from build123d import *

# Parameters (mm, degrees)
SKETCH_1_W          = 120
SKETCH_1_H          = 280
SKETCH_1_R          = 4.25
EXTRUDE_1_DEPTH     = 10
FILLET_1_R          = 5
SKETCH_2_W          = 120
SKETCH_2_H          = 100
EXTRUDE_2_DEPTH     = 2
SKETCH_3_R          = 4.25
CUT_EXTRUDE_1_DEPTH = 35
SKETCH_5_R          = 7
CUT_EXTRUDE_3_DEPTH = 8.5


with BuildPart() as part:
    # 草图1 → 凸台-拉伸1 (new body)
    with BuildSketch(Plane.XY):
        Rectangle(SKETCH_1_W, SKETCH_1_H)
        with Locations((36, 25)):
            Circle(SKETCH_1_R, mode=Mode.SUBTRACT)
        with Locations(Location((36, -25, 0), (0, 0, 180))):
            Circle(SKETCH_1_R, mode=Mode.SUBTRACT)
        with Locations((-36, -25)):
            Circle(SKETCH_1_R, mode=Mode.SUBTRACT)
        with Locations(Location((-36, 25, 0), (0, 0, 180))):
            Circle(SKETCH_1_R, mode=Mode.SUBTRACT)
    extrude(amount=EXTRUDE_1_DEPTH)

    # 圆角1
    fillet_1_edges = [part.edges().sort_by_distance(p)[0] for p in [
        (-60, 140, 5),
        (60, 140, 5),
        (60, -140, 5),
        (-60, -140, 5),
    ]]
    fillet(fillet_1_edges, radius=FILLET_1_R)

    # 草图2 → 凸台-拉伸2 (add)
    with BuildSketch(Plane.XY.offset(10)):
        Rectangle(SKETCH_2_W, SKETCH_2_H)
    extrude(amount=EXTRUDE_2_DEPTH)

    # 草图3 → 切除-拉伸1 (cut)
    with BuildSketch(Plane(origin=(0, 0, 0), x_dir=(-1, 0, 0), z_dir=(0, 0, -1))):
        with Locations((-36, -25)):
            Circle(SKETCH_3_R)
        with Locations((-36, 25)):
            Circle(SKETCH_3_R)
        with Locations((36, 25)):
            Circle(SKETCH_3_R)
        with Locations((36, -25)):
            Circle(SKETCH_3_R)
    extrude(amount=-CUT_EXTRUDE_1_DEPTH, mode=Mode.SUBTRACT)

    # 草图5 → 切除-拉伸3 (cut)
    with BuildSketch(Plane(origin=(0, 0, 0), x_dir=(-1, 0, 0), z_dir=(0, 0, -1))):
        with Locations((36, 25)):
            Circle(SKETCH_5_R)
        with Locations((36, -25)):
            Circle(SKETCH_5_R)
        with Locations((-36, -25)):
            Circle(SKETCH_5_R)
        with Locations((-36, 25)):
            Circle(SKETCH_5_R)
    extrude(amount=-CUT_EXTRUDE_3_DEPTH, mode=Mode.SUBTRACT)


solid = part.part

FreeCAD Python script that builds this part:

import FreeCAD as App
import Part
import Sketcher
from FreeCAD import Vector
Q = App.Units.Quantity


def edges_at(feature, points):
    """Names of the edges that pass closest to the given points."""
    edges = feature.Shape.Edges
    near = lambda p: min(range(len(edges)), key=lambda i: edges[i].distToShape(Part.Vertex(*p))[0])
    return sorted({f"Edge{near(p) + 1}" for p in points})


def add_polygon(sketch, points):
    """Adds a closed chain of lines whose ends are joined by coincident constraints."""
    first, n = sketch.GeometryCount, len(points)
    for a, b in zip(points, points[1:] + points[:1]):
        sketch.addGeometry(Part.LineSegment(App.Vector(*a, 0), App.Vector(*b, 0)), False)
    for i in range(n):
        sketch.addConstraint(Sketcher.Constraint("Coincident", first + i, 2, first + (i + 1) % n, 1))

doc = App.newDocument("Part")
params = doc.addObject("Spreadsheet::Sheet", "Params")
for row, (alias, value) in enumerate([
    ("sketch1_diameter", "8.5 mm"),
    ("sketch1_width", "120 mm"),
    ("sketch1_height", "280 mm"),
    ("pad1_length", "10 mm"),
    ("fillet_radius", "5 mm"),
    ("sketch2_width", "120 mm"),
    ("sketch2_height", "100 mm"),
    ("pad2_length", "2 mm"),
    ("sketch3_diameter", "8.5 mm"),
    ("pocket1_length", "35 mm"),
    ("sketch4_diameter", "14 mm"),
    ("pocket2_length", "8.5 mm"),
], start=1):
    params.set(f"A{row}", alias)
    params.set(f"B{row}", "=" + value)
    params.setAlias(f"B{row}", alias)

body = doc.addObject("PartDesign::Body", "Body")

# Sketch on XY plane
sketch1 = body.newObject("Sketcher::SketchObject", "Sketch")
sketch1.AttachmentSupport = (doc.getObject("XY_Plane"), [""])
sketch1.MapMode = "FlatFace"
add_polygon(sketch1, [(-60, 140), (-60, -140), (60, -140), (60, 140)])  # lines 0-3
sketch1.addGeometry(Part.Circle(Vector(-36, -25, 0), Vector(0, 0, 1), 4.2), False)  # 4
sketch1.addGeometry(Part.Circle(Vector(36, -25, 0), Vector(0, 0, 1), 4.2), False)  # 5
sketch1.addGeometry(Part.Circle(Vector(-36, 25, 0), Vector(0, 0, 1), 4.2), False)  # 6
sketch1.addGeometry(Part.Circle(Vector(36, 25, 0), Vector(0, 0, 1), 4.2), False)  # 7
sketch1.addConstraint(Sketcher.Constraint("Vertical", 0))
sketch1.addConstraint(Sketcher.Constraint("Horizontal", 1))
sketch1.addConstraint(Sketcher.Constraint("Vertical", 2))
sketch1.addConstraint(Sketcher.Constraint("Horizontal", 3))
sketch1.addConstraint(Sketcher.Constraint("Equal", 4, 5))
sketch1.addConstraint(Sketcher.Constraint("Equal", 5, 6))
sketch1.addConstraint(Sketcher.Constraint("Equal", 6, 7))
sketch1.addConstraint(Sketcher.Constraint("Symmetric", 5, 3, 6, 3, -1, 1))
sketch1.addConstraint(Sketcher.Constraint("Symmetric", 4, 3, 7, 3, -1, 1))
sketch1.addConstraint(Sketcher.Constraint("Symmetric", 0, 2, 2, 2, -1, 1))
sketch1.addConstraint(Sketcher.Constraint("Symmetric", 4, 3, 5, 3, -2))
sketch1.addConstraint(Sketcher.Constraint("Diameter", 4, Q("8.5 mm")))
sketch1.addConstraint(Sketcher.Constraint("DistanceX", 1, 1, 1, 2, Q("120 mm")))
sketch1.addConstraint(Sketcher.Constraint("DistanceY", 0, 2, 0, 1, Q("280 mm")))
sketch1.addConstraint(Sketcher.Constraint("DistanceX", 4, 3, -1, 1, Q("36 mm")))
sketch1.addConstraint(Sketcher.Constraint("DistanceY", 4, 3, -1, 1, Q("25 mm")))
sketch1.setExpression("Constraints[15]", "Params.sketch1_diameter")
sketch1.setExpression("Constraints[16]", "Params.sketch1_width")
sketch1.setExpression("Constraints[17]", "Params.sketch1_height")
pad1 = body.newObject("PartDesign::Pad", "Pad")
pad1.Profile = sketch1
pad1.setExpression("Length", "Params.pad1_length")
doc.recompute()

fillet = body.newObject("PartDesign::Fillet", "Fillet")
fillet.Base = (pad1, edges_at(pad1, [
    (-60, 140, 5),
    (60, 140, 5),
    (60, -140, 5),
    (-60, -140, 5),
]))
fillet.setExpression("Radius", "Params.fillet_radius")

# Sketch on XY plane
sketch2 = body.newObject("Sketcher::SketchObject", "Sketch001")
sketch2.AttachmentSupport = (doc.getObject("XY_Plane"), [""])
sketch2.MapMode = "FlatFace"
sketch2.AttachmentOffset = App.Placement(Vector(0, 0, 10), App.Rotation())
add_polygon(sketch2, [(-60, 50), (-60, -50), (60, -50), (60, 50)])  # lines 0-3
sketch2.addConstraint(Sketcher.Constraint("Vertical", 0))
sketch2.addConstraint(Sketcher.Constraint("Horizontal", 1))
sketch2.addConstraint(Sketcher.Constraint("Vertical", 2))
sketch2.addConstraint(Sketcher.Constraint("Horizontal", 3))
sketch2.addConstraint(Sketcher.Constraint("Symmetric", 0, 2, 2, 2, -1, 1))
sketch2.addConstraint(Sketcher.Constraint("DistanceX", 1, 1, 1, 2, Q("120 mm")))
sketch2.addConstraint(Sketcher.Constraint("DistanceY", 0, 2, 0, 1, Q("100 mm")))
sketch2.setExpression("Constraints[9]", "Params.sketch2_width")
sketch2.setExpression("Constraints[10]", "Params.sketch2_height")
pad2 = body.newObject("PartDesign::Pad", "Pad001")
pad2.Profile = sketch2
pad2.setExpression("Length", "Params.pad2_length")

# Sketch on XY plane
sketch3 = body.newObject("Sketcher::SketchObject", "Sketch002")
sketch3.AttachmentSupport = (doc.getObject("XY_Plane"), [""])
sketch3.MapMode = "FlatFace"
sketch3.addGeometry(Part.Circle(Vector(36, -25, 0), Vector(0, 0, 1), 4.2), False)
sketch3.addGeometry(Part.Circle(Vector(36, 25, 0), Vector(0, 0, 1), 4.2), False)
sketch3.addGeometry(Part.Circle(Vector(-36, 25, 0), Vector(0, 0, 1), 4.2), False)
sketch3.addGeometry(Part.Circle(Vector(-36, -25, 0), Vector(0, 0, 1), 4.2), False)
sketch3.addConstraint(Sketcher.Constraint("Equal", 0, 1))
sketch3.addConstraint(Sketcher.Constraint("Equal", 1, 2))
sketch3.addConstraint(Sketcher.Constraint("Equal", 2, 3))
sketch3.addConstraint(Sketcher.Constraint("Symmetric", 0, 3, 2, 3, -1, 1))
sketch3.addConstraint(Sketcher.Constraint("Symmetric", 1, 3, 3, 3, -1, 1))
sketch3.addConstraint(Sketcher.Constraint("Symmetric", 1, 3, 2, 3, -2))
sketch3.addConstraint(Sketcher.Constraint("Diameter", 0, Q("8.5 mm")))
sketch3.addConstraint(Sketcher.Constraint("DistanceX", -1, 1, 0, 3, Q("36 mm")))
sketch3.addConstraint(Sketcher.Constraint("DistanceY", 0, 3, -1, 1, Q("25 mm")))
sketch3.setExpression("Constraints[6]", "Params.sketch3_diameter")
pocket1 = body.newObject("PartDesign::Pocket", "Pocket")
pocket1.Profile = sketch3
pocket1.setExpression("Length", "Params.pocket1_length")
pocket1.Reversed = True

# Sketch on XY plane
sketch4 = body.newObject("Sketcher::SketchObject", "Sketch003")
sketch4.AttachmentSupport = (doc.getObject("XY_Plane"), [""])
sketch4.MapMode = "FlatFace"
sketch4.addGeometry(Part.Circle(Vector(-36, 25, 0), Vector(0, 0, 1), 7), False)
sketch4.addGeometry(Part.Circle(Vector(-36, -25, 0), Vector(0, 0, 1), 7), False)
sketch4.addGeometry(Part.Circle(Vector(36, -25, 0), Vector(0, 0, 1), 7), False)
sketch4.addGeometry(Part.Circle(Vector(36, 25, 0), Vector(0, 0, 1), 7), False)
sketch4.addConstraint(Sketcher.Constraint("Equal", 0, 1))
sketch4.addConstraint(Sketcher.Constraint("Equal", 1, 2))
sketch4.addConstraint(Sketcher.Constraint("Equal", 2, 3))
sketch4.addConstraint(Sketcher.Constraint("Symmetric", 0, 3, 2, 3, -1, 1))
sketch4.addConstraint(Sketcher.Constraint("Symmetric", 1, 3, 3, 3, -1, 1))
sketch4.addConstraint(Sketcher.Constraint("Symmetric", 1, 3, 2, 3, -2))
sketch4.addConstraint(Sketcher.Constraint("Diameter", 0, Q("14 mm")))
sketch4.addConstraint(Sketcher.Constraint("DistanceX", 0, 3, -1, 1, Q("36 mm")))
sketch4.addConstraint(Sketcher.Constraint("DistanceY", -1, 1, 0, 3, Q("25 mm")))
sketch4.setExpression("Constraints[6]", "Params.sketch4_diameter")
pocket2 = body.newObject("PartDesign::Pocket", "Pocket001")
pocket2.Profile = sketch4
pocket2.setExpression("Length", "Params.pocket2_length")
pocket2.Reversed = True

doc.recompute()
